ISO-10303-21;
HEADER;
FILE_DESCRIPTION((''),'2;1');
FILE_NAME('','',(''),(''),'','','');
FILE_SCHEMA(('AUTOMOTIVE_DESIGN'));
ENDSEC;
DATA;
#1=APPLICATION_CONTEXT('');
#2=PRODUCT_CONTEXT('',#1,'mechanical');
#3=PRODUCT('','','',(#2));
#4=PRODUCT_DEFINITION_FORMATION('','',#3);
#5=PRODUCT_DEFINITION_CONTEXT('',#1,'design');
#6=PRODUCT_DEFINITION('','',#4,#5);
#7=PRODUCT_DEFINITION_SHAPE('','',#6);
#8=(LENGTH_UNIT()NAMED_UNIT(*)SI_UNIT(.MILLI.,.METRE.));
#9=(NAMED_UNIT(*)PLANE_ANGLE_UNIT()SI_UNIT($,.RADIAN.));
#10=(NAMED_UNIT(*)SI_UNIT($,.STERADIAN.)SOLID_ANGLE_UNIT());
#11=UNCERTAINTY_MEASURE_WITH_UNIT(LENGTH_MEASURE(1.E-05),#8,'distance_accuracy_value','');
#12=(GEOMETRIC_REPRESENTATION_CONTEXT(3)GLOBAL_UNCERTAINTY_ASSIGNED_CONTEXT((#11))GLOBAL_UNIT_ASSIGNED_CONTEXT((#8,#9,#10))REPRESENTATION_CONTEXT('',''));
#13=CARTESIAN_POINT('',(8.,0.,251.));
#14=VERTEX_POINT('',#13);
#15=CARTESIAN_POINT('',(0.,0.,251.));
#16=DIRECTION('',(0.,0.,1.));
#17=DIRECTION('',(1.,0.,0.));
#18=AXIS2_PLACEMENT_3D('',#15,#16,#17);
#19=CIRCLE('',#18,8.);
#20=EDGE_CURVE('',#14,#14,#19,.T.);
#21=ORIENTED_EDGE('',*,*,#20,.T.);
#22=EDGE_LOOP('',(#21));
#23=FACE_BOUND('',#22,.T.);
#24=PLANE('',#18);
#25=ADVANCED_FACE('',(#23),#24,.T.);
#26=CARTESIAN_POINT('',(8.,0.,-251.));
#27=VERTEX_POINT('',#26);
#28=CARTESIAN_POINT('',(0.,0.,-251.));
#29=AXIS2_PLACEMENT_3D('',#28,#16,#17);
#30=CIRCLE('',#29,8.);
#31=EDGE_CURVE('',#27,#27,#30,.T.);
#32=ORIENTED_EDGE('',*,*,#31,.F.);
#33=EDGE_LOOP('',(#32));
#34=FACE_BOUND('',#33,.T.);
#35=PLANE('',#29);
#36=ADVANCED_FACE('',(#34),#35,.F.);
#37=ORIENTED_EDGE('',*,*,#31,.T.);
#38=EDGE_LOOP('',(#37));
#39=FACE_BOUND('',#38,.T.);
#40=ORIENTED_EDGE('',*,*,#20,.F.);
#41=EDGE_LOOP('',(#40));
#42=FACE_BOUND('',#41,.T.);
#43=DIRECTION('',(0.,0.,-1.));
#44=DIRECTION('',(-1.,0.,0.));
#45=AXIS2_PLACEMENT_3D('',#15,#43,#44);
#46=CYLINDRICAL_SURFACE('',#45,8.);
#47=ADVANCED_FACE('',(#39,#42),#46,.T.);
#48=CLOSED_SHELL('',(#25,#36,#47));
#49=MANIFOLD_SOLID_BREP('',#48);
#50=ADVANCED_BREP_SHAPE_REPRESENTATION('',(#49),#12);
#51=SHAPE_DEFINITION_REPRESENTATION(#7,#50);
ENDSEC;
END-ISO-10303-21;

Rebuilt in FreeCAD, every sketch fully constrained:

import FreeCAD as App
import Part
import Sketcher

doc = App.newDocument("Part")
body = doc.addObject("PartDesign::Body", "Body")

# Sketch on XY plane
sketch1 = body.newObject("Sketcher::SketchObject", "Sketch")
sketch1.AttachmentSupport = (doc.getObject("XY_Plane"), [""])
sketch1.MapMode = "FlatFace"
sketch1.addGeometry(Part.Circle(App.Vector(0, 0, 0), App.Vector(0, 0, 1), 8), False)
sketch1.addConstraint(Sketcher.Constraint("Coincident", 0, 3, -1, 1))
sketch1.addConstraint(Sketcher.Constraint("Diameter", 0, 16.0))
pad1 = body.newObject("PartDesign::Pad", "Pad")
pad1.Profile = sketch1
pad1.Length = 502
pad1.Midplane = True

doc.recompute()
